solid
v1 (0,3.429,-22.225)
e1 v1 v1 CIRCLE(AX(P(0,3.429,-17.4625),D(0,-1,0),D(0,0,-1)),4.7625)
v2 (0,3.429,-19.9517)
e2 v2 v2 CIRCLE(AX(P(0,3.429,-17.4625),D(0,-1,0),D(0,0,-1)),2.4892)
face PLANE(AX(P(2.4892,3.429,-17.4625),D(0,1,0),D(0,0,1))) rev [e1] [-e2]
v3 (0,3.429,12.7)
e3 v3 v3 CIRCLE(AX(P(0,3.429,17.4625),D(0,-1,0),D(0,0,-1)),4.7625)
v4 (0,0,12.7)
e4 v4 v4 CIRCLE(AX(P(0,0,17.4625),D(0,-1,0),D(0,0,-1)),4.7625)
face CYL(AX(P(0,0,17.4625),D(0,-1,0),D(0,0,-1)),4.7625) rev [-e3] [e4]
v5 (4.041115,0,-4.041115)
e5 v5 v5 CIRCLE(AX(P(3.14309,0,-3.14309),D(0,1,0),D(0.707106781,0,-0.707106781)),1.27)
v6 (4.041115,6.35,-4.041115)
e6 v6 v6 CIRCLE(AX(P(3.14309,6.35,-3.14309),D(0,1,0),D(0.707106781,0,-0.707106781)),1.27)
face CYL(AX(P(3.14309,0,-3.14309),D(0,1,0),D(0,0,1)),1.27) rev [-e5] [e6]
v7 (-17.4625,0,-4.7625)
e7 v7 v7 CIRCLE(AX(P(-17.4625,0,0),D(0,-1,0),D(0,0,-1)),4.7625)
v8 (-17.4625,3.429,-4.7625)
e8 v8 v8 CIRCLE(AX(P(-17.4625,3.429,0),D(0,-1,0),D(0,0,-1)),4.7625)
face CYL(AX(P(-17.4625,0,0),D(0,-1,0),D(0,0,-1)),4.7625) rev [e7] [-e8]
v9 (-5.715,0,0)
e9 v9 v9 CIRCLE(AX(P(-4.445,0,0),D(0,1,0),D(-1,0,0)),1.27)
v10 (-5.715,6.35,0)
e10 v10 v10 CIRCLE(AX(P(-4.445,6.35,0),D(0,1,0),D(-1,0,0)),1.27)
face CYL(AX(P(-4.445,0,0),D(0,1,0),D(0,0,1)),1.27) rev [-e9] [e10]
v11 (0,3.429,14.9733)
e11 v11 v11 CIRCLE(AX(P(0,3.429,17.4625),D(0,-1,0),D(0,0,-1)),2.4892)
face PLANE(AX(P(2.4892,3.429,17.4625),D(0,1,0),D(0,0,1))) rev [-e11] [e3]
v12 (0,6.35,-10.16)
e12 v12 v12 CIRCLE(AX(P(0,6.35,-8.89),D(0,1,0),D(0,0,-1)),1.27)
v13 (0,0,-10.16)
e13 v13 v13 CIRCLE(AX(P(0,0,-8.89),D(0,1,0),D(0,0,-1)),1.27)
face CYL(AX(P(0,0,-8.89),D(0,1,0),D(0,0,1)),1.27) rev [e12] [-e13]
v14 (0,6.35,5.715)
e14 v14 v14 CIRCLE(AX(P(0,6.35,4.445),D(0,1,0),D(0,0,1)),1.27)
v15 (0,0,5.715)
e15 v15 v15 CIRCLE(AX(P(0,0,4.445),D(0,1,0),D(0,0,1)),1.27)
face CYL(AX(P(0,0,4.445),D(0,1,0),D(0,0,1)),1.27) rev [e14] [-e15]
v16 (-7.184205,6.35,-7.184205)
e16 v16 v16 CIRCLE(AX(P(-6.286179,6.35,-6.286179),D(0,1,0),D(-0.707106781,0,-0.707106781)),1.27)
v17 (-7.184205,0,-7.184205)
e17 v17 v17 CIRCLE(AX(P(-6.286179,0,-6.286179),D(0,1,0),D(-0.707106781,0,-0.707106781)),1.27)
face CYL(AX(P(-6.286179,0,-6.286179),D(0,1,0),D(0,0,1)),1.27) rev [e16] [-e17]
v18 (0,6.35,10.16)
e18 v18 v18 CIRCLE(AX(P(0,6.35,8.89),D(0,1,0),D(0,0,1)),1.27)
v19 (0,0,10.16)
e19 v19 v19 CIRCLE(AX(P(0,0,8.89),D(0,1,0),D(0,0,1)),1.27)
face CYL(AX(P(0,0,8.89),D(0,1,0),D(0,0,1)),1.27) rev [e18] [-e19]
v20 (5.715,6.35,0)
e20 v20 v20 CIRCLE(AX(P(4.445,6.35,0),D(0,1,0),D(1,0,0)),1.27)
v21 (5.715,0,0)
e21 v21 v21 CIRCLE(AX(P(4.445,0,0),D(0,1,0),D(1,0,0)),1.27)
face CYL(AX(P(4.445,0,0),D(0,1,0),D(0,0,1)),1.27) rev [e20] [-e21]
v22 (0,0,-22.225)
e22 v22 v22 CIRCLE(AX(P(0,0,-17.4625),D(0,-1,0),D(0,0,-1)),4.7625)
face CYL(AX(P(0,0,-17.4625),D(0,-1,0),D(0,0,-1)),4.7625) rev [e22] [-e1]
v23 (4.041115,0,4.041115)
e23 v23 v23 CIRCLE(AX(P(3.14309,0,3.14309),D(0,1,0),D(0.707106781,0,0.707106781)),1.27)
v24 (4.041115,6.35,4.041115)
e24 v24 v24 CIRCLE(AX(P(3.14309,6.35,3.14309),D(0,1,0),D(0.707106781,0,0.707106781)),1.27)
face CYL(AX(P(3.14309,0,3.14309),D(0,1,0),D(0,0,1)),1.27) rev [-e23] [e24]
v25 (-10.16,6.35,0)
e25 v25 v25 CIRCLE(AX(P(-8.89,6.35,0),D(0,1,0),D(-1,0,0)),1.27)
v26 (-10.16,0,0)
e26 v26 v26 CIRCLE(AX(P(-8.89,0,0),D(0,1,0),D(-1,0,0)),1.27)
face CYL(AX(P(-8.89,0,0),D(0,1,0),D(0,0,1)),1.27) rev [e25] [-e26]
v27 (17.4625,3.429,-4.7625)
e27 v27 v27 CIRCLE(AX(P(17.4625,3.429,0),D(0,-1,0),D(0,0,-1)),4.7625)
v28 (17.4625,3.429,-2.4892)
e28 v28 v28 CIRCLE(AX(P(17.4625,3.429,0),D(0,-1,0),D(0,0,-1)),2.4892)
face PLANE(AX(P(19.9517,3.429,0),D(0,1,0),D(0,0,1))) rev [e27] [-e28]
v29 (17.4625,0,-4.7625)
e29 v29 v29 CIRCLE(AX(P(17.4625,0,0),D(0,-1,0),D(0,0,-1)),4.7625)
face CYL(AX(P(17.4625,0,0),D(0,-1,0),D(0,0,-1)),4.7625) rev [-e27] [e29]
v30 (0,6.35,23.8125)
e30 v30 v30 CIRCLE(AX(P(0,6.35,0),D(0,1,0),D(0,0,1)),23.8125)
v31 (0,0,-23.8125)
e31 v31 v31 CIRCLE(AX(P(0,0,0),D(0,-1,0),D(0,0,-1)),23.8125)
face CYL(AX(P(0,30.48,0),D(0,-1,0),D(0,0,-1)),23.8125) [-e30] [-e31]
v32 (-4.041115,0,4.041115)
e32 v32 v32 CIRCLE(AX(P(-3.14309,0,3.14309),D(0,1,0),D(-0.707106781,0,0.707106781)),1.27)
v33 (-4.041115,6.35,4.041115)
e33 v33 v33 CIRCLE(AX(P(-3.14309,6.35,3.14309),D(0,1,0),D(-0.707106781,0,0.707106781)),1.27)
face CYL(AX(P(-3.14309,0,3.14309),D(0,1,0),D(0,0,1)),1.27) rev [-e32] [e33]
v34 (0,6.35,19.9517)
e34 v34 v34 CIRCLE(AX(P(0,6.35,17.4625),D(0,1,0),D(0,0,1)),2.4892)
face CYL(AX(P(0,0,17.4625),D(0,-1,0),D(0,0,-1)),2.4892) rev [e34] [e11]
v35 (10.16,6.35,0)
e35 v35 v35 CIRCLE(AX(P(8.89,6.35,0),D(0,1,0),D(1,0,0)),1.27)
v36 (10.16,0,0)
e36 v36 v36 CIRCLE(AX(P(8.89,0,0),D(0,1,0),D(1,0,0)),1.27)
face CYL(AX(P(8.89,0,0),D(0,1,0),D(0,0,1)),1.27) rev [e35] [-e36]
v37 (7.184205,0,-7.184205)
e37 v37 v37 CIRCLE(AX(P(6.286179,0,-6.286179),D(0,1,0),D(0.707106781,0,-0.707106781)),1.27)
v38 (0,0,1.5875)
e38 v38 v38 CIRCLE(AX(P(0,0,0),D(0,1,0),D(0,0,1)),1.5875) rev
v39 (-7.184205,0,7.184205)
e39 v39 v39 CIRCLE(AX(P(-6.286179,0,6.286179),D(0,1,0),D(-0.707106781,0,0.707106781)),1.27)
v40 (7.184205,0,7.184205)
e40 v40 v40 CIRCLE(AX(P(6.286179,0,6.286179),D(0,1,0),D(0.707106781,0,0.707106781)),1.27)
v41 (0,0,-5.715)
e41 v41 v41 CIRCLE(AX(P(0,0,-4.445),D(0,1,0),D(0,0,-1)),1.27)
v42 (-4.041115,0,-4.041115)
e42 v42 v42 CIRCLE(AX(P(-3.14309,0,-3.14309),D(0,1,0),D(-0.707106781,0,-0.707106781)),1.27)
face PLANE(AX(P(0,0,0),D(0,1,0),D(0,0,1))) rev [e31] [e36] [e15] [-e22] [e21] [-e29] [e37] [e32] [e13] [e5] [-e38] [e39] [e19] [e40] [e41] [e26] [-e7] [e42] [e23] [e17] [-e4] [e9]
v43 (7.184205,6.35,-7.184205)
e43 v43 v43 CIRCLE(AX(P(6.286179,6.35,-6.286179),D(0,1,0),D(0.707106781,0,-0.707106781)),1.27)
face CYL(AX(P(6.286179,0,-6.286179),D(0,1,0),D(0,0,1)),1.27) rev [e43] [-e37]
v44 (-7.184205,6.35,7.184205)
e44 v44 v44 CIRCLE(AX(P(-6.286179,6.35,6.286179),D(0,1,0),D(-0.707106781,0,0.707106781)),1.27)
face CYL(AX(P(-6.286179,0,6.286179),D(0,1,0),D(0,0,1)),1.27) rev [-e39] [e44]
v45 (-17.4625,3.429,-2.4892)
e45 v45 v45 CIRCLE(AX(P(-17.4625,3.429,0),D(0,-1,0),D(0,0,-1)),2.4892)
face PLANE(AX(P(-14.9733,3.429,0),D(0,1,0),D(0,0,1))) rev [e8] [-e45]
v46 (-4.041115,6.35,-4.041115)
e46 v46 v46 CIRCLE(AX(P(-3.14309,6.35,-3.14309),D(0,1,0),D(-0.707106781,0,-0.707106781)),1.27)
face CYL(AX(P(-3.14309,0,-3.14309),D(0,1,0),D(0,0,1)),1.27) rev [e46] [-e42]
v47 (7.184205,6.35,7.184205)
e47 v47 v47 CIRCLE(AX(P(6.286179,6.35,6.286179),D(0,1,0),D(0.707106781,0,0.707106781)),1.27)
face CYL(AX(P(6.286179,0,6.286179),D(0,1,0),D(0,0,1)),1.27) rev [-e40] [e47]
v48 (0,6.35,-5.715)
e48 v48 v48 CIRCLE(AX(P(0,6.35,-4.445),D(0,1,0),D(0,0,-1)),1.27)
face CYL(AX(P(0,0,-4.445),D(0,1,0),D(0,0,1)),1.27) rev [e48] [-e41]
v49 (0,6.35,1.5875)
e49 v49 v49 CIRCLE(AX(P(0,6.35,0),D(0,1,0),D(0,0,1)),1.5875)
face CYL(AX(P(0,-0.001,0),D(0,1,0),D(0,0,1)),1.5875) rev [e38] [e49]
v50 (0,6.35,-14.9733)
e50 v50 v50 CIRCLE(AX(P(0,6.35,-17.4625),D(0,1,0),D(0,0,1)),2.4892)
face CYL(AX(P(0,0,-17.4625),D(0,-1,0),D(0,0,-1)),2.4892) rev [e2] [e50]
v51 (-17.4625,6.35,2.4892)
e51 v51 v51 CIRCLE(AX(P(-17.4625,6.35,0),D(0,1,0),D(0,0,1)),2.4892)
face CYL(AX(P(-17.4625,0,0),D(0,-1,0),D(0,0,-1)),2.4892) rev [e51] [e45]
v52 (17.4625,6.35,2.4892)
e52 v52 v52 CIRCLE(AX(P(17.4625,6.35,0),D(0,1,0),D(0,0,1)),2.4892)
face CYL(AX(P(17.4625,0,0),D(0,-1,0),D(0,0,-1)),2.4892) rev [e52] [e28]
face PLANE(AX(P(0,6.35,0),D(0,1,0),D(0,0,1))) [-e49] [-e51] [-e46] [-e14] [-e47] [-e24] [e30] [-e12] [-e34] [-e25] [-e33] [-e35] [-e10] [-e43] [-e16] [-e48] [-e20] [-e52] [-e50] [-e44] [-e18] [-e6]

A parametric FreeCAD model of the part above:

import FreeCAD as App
import Part
import Sketcher
Q = App.Units.Quantity

doc = App.newDocument("Part")
body = doc.addObject("PartDesign::Body", "Body")

sketch1 = doc.addObject("Sketcher::SketchObject", "Sketch")
body.addObject(sketch1)
sketch1.AttachmentSupport = (doc.XZ_Plane, [""])
sketch1.MapMode = "FlatFace"
sketch1.addGeometry(Part.Circle(App.Vector(0, 0, 0), App.Vector(0, 0, 1), 51), False)
sketch1.addConstraint([
    Sketcher.Constraint("Coincident", 0, 3, -1, 1),
    Sketcher.Constraint("Diameter", 0, Q("4 in")),
])
pad1 = doc.addObject("PartDesign::Pad", "Pad")
body.addObject(pad1)
pad1.Profile = sketch1
pad1.Length = Q("1 in")
pad1.Reversed = True

sketch2 = doc.addObject("Sketcher::SketchObject", "Sketch001")
body.addObject(sketch2)
sketch2.AttachmentSupport = (doc.XZ_Plane, [""])
sketch2.MapMode = "FlatFace"
sketch2.addGeometry([
    Part.Circle(App.Vector(0, 0, 0), App.Vector(0, 0, 1), 70),
    Part.Circle(App.Vector(0, 0, 0), App.Vector(0, 0, 1), 51),
], False)
sketch2.addConstraint([
    Sketcher.Constraint("Coincident", 0, 3, -1, 1),
    Sketcher.Constraint("Coincident", 1, 3, -1, 1),
    Sketcher.Constraint("Diameter", 1, Q("4 in")),
    Sketcher.Constraint("Diameter", 0, Q("5.5 in")),
])
pad2 = doc.addObject("PartDesign::Pad", "Pad001")
body.addObject(pad2)
pad2.Profile = sketch2
pad2.Length = Q("0.5 in")
pad2.Reversed = True

sketch3 = doc.addObject("Sketcher::SketchObject", "Sketch002")
body.addObject(sketch3)
sketch3.AttachmentSupport = (doc.XZ_Plane, [""])
sketch3.MapMode = "FlatFace"
sketch3.addGeometry([
    Part.Circle(App.Vector(0, 0, 0), App.Vector(0, 0, 1), 50),
    Part.Circle(App.Vector(0, 0, 0), App.Vector(0, 0, 1), 48),
], False)
sketch3.addConstraint([
    Sketcher.Constraint("Coincident", 0, 3, -1, 1),
    Sketcher.Constraint("Coincident", 1, 3, -1, 1),
    Sketcher.Constraint("Diameter", 0, Q("3.9 in")),
    Sketcher.Constraint("Diameter", 1, Q("3.75 in")),
])
pocket1 = doc.addObject("PartDesign::Pocket", "Pocket")
body.addObject(pocket1)
pocket1.Profile = sketch3
pocket1.Length = Q("0.044 in")

sketch4 = doc.addObject("Sketcher::SketchObject", "Sketch003")
body.addObject(sketch4)
sketch4.AttachmentSupport = (doc.XZ_Plane, [""])
sketch4.MapMode = "FlatFace"
sketch4.addGeometry(Part.Circle(App.Vector(0, -59.9, 0), App.Vector(0, 0, 1), 3.2), False)
sketch4.addConstraint([
    Sketcher.Constraint("PointOnObject", 0, 3, -2),
    Sketcher.Constraint("Diameter", 0, Q("0.25 in")),
    Sketcher.Constraint("DistanceY", 0, 3, -1, 1, Q("2.359 in")),
])
pocket2 = doc.addObject("PartDesign::Pocket", "Pocket001")
body.addObject(pocket2)
pocket2.Profile = sketch4
pocket2.Type = "UpToFirst"

sketch5 = doc.addObject("Sketcher::SketchObject", "Sketch004")
body.addObject(sketch5)
sketch5.AttachmentSupport = (doc.XZ_Plane, [""])
sketch5.MapMode = "FlatFace"
sketch5.addGeometry(Part.Circle(App.Vector(-42.4, -42.4, 0), App.Vector(0, 0, 1), 3.2), False)
sketch5.addConstraint([
    Sketcher.Constraint("Diameter", 0, Q("0.25 in")),
    Sketcher.Constraint("DistanceX", 0, 3, -1, 1, 42.368848),
    Sketcher.Constraint("DistanceY", 0, 3, -1, 1, 42.368848),
])
pocket3 = doc.addObject("PartDesign::Pocket", "Pocket002")
body.addObject(pocket3)
pocket3.Profile = sketch5
pocket3.Type = "UpToFirst"

sketch6 = doc.addObject("Sketcher::SketchObject", "Sketch005")
body.addObject(sketch6)
sketch6.AttachmentSupport = (doc.XZ_Plane, [""])
sketch6.MapMode = "FlatFace"
sketch6.addGeometry(Part.Circle(App.Vector(-59.9, 0, 0), App.Vector(0, 0, 1), 3.2), False)
sketch6.addConstraint([
    Sketcher.Constraint("PointOnObject", 0, 3, -1),
    Sketcher.Constraint("Diameter", 0, Q("0.25 in")),
    Sketcher.Constraint("DistanceX", 0, 3, -1, 1, Q("2.359 in")),
])
pocket4 = doc.addObject("PartDesign::Pocket", "Pocket003")
body.addObject(pocket4)
pocket4.Profile = sketch6
pocket4.Type = "UpToFirst"

sketch7 = doc.addObject("Sketcher::SketchObject", "Sketch006")
body.addObject(sketch7)
sketch7.AttachmentSupport = (doc.XZ_Plane, [""])
sketch7.MapMode = "FlatFace"
sketch7.addGeometry(Part.Circle(App.Vector(-42.4, 42.4, 0), App.Vector(0, 0, 1), 3.2), False)
sketch7.addConstraint([
    Sketcher.Constraint("Diameter", 0, Q("0.25 in")),
    Sketcher.Constraint("DistanceX", 0, 3, -1, 1, 42.368848),
    Sketcher.Constraint("DistanceY", -1, 1, 0, 3, 42.368848),
])
pocket5 = doc.addObject("PartDesign::Pocket", "Pocket004")
body.addObject(pocket5)
pocket5.Profile = sketch7
pocket5.Type = "UpToFirst"

sketch8 = doc.addObject("Sketcher::SketchObject", "Sketch007")
body.addObject(sketch8)
sketch8.AttachmentSupport = (doc.XZ_Plane, [""])
sketch8.MapMode = "FlatFace"
sketch8.addGeometry(Part.Circle(App.Vector(0, 59.9, 0), App.Vector(0, 0, 1), 3.2), False)
sketch8.addConstraint([
    Sketcher.Constraint("PointOnObject", 0, 3, -2),
    Sketcher.Constraint("Diameter", 0, Q("0.25 in")),
    Sketcher.Constraint("DistanceY", -1, 1, 0, 3, Q("2.359 in")),
])
pocket6 = doc.addObject("PartDesign::Pocket", "Pocket005")
body.addObject(pocket6)
pocket6.Profile = sketch8
pocket6.Type = "UpToFirst"

sketch9 = doc.addObject("Sketcher::SketchObject", "Sketch008")
body.addObject(sketch9)
sketch9.AttachmentSupport = (doc.XZ_Plane, [""])
sketch9.MapMode = "FlatFace"
sketch9.addGeometry(Part.Circle(App.Vector(42.4, 42.4, 0), App.Vector(0, 0, 1), 3.2), False)
sketch9.addConstraint([
    Sketcher.Constraint("Diameter", 0, Q("0.25 in")),
    Sketcher.Constraint("DistanceX", -1, 1, 0, 3, 42.368848),
    Sketcher.Constraint("DistanceY", -1, 1, 0, 3, 42.368848),
])
pocket7 = doc.addObject("PartDesign::Pocket", "Pocket006")
body.addObject(pocket7)
pocket7.Profile = sketch9
pocket7.Type = "UpToFirst"

sketch10 = doc.addObject("Sketcher::SketchObject", "Sketch009")
body.addObject(sketch10)
sketch10.AttachmentSupport = (doc.XZ_Plane, [""])
sketch10.MapMode = "FlatFace"
sketch10.addGeometry(Part.Circle(App.Vector(59.9, 0, 0), App.Vector(0, 0, 1), 3.2), False)
sketch10.addConstraint([
    Sketcher.Constraint("PointOnObject", 0, 3, -1),
    Sketcher.Constraint("Diameter", 0, Q("0.25 in")),
    Sketcher.Constraint("DistanceX", -1, 1, 0, 3, Q("2.359 in")),
])
pocket8 = doc.addObject("PartDesign::Pocket", "Pocket007")
body.addObject(pocket8)
pocket8.Profile = sketch10
pocket8.Type = "UpToFirst"

sketch11 = doc.addObject("Sketcher::SketchObject", "Sketch010")
body.addObject(sketch11)
sketch11.AttachmentSupport = (doc.XZ_Plane, [""])
sketch11.MapMode = "FlatFace"
sketch11.addGeometry(Part.Circle(App.Vector(42.4, -42.4, 0), App.Vector(0, 0, 1), 3.2), False)
sketch11.addConstraint([
    Sketcher.Constraint("Diameter", 0, Q("0.25 in")),
    Sketcher.Constraint("DistanceX", -1, 1, 0, 3, 42.368848),
    Sketcher.Constraint("DistanceY", 0, 3, -1, 1, 42.368848),
])
pocket9 = doc.addObject("PartDesign::Pocket", "Pocket008")
body.addObject(pocket9)
pocket9.Profile = sketch11
pocket9.Type = "UpToFirst"

sketch12 = doc.addObject("Sketcher::SketchObject", "Sketch011")
body.addObject(sketch12)
sketch12.AttachmentSupport = (doc.XZ_Plane, [""])
sketch12.MapMode = "FlatFace"
sketch12.AttachmentOffset = App.Placement(App.Vector(0, 0, -1 * 25.4), App.Rotation())
sketch12.addGeometry(Part.Circle(App.Vector(0, 0, 0), App.Vector(0, 0, 1), 11), False)
sketch12.addConstraint([
    Sketcher.Constraint("Coincident", 0, 3, -1, 1),
    Sketcher.Constraint("Diameter", 0, Q("0.9 in")),
])
pocket10 = doc.addObject("PartDesign::Pocket", "Pocket009")
body.addObject(pocket10)
pocket10.Profile = sketch12
pocket10.Length = Q("0.75 in")
pocket10.Reversed = True

sketch13 = doc.addObject("Sketcher::SketchObject", "Sketch012")
body.addObject(sketch13)
sketch13.AttachmentSupport = (doc.XZ_Plane, [""])
sketch13.MapMode = "FlatFace"
sketch13.AttachmentOffset = App.Placement(App.Vector(0, 0, -0.25 * 25.4), App.Rotation())
sketch13.addGeometry(Part.Circle(App.Vector(0, 0, 0), App.Vector(0, 0, 1), 1.6), False)
sketch13.addConstraint([
    Sketcher.Constraint("Coincident", 0, 3, -1, 1),
    Sketcher.Constraint("Diameter", 0, Q("0.125 in")),
])
pocket11 = doc.addObject("PartDesign::Pocket", "Pocket010")
body.addObject(pocket11)
pocket11.Profile = sketch13
pocket11.Type = "UpToFirst"
pocket11.Reversed = True

sketch14 = doc.addObject("Sketcher::SketchObject", "Sketch013")
body.addObject(sketch14)
sketch14.AttachmentSupport = (doc.XZ_Plane, [""])
sketch14.MapMode = "FlatFace"
sketch14.addGeometry([
    Part.LineSegment(App.Vector(-91, 91, 0), App.Vector(-91, -91, 0)),
    Part.LineSegment(App.Vector(-91, -91, 0), App.Vector(91, -91, 0)),
    Part.LineSegment(App.Vector(91, -91, 0), App.Vector(91, 91, 0)),
    Part.LineSegment(App.Vector(91, 91, 0), App.Vector(-91, 91, 0)),
    Part.Circle(App.Vector(0, 0, 0), App.Vector(0, 0, 1), 24),
], False)
sketch14.addConstraint([
    Sketcher.Constraint("Coincident", 0, 2, 1, 1),
    Sketcher.Constraint("Coincident", 1, 2, 2, 1),
    Sketcher.Constraint("Coincident", 2, 2, 3, 1),
    Sketcher.Constraint("Coincident", 3, 2, 0, 1),
    Sketcher.Constraint("Vertical", 0),
    Sketcher.Constraint("Horizontal", 1),
    Sketcher.Constraint("Vertical", 2),
    Sketcher.Constraint("Horizontal", 3),
    Sketcher.Constraint("Coincident", 4, 3, -1, 1),
    Sketcher.Constraint("Symmetric", 0, 2, 2, 2, -1, 1),
    Sketcher.Constraint("Equal", 3, 0),
    Sketcher.Constraint("Diameter", 4, Q("1.875 in")),
    Sketcher.Constraint("DistanceX", 1, 1, 1, 2, 181.538),
])
pocket12 = doc.addObject("PartDesign::Pocket", "Pocket011")
body.addObject(pocket12)
pocket12.Profile = sketch14
pocket12.Length = Q("1.2 in")

sketch15 = doc.addObject("Sketcher::SketchObject", "Sketch014")
body.addObject(sketch15)
sketch15.AttachmentSupport = (doc.XZ_Plane, [""])
sketch15.MapMode = "FlatFace"
sketch15.AttachmentOffset = App.Placement(App.Vector(0, 0, -1 * 25.4), App.Rotation())
sketch15.addGeometry(Part.Circle(App.Vector(0, 0, 0), App.Vector(0, 0, 1), 21), False)
sketch15.addConstraint([
    Sketcher.Constraint("Coincident", 0, 3, -1, 1),
    Sketcher.Constraint("Diameter", 0, Q("1.625 in")),
])
pocket13 = doc.addObject("PartDesign::Pocket", "Pocket012")
body.addObject(pocket13)
pocket13.Profile = sketch15
pocket13.Length = Q("0.75 in")
pocket13.Reversed = True

sketch16 = doc.addObject("Sketcher::SketchObject", "Sketch015")
body.addObject(sketch16)
sketch16.AttachmentSupport = (doc.XZ_Plane, [""])
sketch16.MapMode = "FlatFace"
sketch16.addGeometry([
    Part.Circle(App.Vector(0, 17.5, 0), App.Vector(0, 0, 1), 2.5),
    Part.Circle(App.Vector(17.5, 0, 0), App.Vector(0, 0, 1), 2.5),
    Part.Circle(App.Vector(-17.5, 0, 0), App.Vector(0, 0, 1), 2.5),
    Part.Circle(App.Vector(0, -17.5, 0), App.Vector(0, 0, 1), 2.5),
], False)
sketch16.addConstraint([
    Sketcher.Constraint("Equal", 0, 1),
    Sketcher.Constraint("Equal", 1, 2),
    Sketcher.Constraint("Equal", 2, 3),
    Sketcher.Constraint("Symmetric", 1, 3, 2, 3, -1, 1),
    Sketcher.Constraint("Symmetric", 0, 3, 3, 3, -1, 1),
    Sketcher.Constraint("PointOnObject", 0, 3, -2),
    Sketcher.Constraint("PointOnObject", 1, 3, -1),
    Sketcher.Constraint("Diameter", 0, Q("0.196 in")),
    Sketcher.Constraint("DistanceY", -1, 1, 0, 3, Q("0.6875 in")),
    Sketcher.Constraint("DistanceX", -1, 1, 1, 3, Q("0.6875 in")),
])
doc.recompute()
hole = doc.addObject("PartDesign::Hole", "Hole")
body.addObject(hole)
hole.Profile = sketch16
hole.ThreadType = "None"
hole.Diameter = Q("0.196 in")
hole.DepthType = "ThroughAll"
hole.HoleCutType = "Counterbore"
hole.HoleCutDiameter = Q("0.375 in")
hole.HoleCutDepth = Q("0.135 in")

sketch17 = doc.addObject("Sketcher::SketchObject", "Sketch016")
body.addObject(sketch17)
sketch17.AttachmentSupport = (doc.XZ_Plane, [""])
sketch17.MapMode = "FlatFace"
sketch17.AttachmentOffset = App.Placement(App.Vector(0, 0, -1 * 25.4), App.Rotation())
sketch17.addGeometry(Part.Circle(App.Vector(0, 0, 0), App.Vector(0, 0, 1), 24), False)
sketch17.addConstraint([
    Sketcher.Constraint("Coincident", 0, 3, -1, 1),
    Sketcher.Constraint("Diameter", 0, Q("1.875 in")),
])
pocket14 = doc.addObject("PartDesign::Pocket", "Pocket013")
body.addObject(pocket14)
pocket14.Profile = sketch17
pocket14.Length = Q("0.75 in")
pocket14.Reversed = True

sketch18 = doc.addObject("Sketcher::SketchObject", "Sketch017")
body.addObject(sketch18)
sketch18.AttachmentSupport = (doc.XZ_Plane, [""])
sketch18.MapMode = "FlatFace"
sketch18.AttachmentOffset = App.Placement(App.Vector(0, 0, -0.25 * 25.4), App.Rotation())
sketch18.addGeometry(Part.Circle(App.Vector(0, 4.4, 0), App.Vector(0, 0, 1), 1.3), False)
sketch18.addConstraint([
    Sketcher.Constraint("PointOnObject", 0, 3, -2),
    Sketcher.Constraint("Diameter", 0, Q("0.1 in")),
    Sketcher.Constraint("DistanceY", -1, 1, 0, 3, Q("0.175 in")),
])
pocket15 = doc.addObject("PartDesign::Pocket", "Pocket014")
body.addObject(pocket15)
pocket15.Profile = sketch18
pocket15.Length = Q("0.25 in")
pocket15.Reversed = True
doc.recompute()

polarpattern = doc.addObject("PartDesign::PolarPattern", "PolarPattern")
body.addObject(polarpattern)
polarpattern.Originals = [pocket15]
polarpattern.Axis = (doc.Y_Axis, [""])
polarpattern.Angle = 360
polarpattern.Occurrences = 8
body.Tip = polarpattern

sketch19 = doc.addObject("Sketcher::SketchObject", "Sketch018")
body.addObject(sketch19)
sketch19.AttachmentSupport = (doc.XZ_Plane, [""])
sketch19.MapMode = "FlatFace"
sketch19.AttachmentOffset = App.Placement(App.Vector(0, 0, -0.25 * 25.4), App.Rotation())
sketch19.addGeometry(Part.Circle(App.Vector(0, 8.9, 0), App.Vector(0, 0, 1), 1.3), False)
sketch19.addConstraint([
    Sketcher.Constraint("PointOnObject", 0, 3, -2),
    Sketcher.Constraint("Diameter", 0, Q("0.1 in")),
    Sketcher.Constraint("DistanceY", -1, 1, 0, 3, Q("0.35 in")),
])
pocket16 = doc.addObject("PartDesign::Pocket", "Pocket015")
body.addObject(pocket16)
pocket16.Profile = sketch19
pocket16.Length = Q("0.25 in")
pocket16.Reversed = True
doc.recompute()

polarpattern2 = doc.addObject("PartDesign::PolarPattern", "PolarPattern001")
body.addObject(polarpattern2)
polarpattern2.Originals = [pocket16]
polarpattern2.Axis = (doc.Y_Axis, [""])
polarpattern2.Angle = 360
polarpattern2.Occurrences = 8
body.Tip = polarpattern2

doc.recompute()
